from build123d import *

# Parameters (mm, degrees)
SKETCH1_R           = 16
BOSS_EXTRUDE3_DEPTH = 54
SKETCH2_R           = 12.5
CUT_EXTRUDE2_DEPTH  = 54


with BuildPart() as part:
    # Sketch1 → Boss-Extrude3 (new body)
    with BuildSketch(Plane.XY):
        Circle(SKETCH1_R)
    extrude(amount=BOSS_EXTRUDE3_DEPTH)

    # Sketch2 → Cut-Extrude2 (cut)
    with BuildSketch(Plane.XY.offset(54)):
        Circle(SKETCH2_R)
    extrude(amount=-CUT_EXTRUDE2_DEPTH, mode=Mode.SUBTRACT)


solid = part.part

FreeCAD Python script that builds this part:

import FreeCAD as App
import Part
import Sketcher

V = App.Vector

doc = App.newDocument("Part")
body = doc.addObject("PartDesign::Body", "Body")

# Sketch on XY plane
sketch1 = body.newObject("Sketcher::SketchObject", "Sketch")
sketch1.AttachmentSupport = (doc.getObject("XY_Plane"), [""])
sketch1.MapMode = "FlatFace"
sketch1.addGeometry(Part.Circle(V(0, 0, 0), V(0, 0, 1), 16), False)
sketch1.addConstraint([
    Sketcher.Constraint("Coincident", 0, 3, -1, 1),
    Sketcher.Constraint("Diameter", 0, 32.0),
])
pad1 = body.newObject("PartDesign::Pad", "Pad")
pad1.Profile = sketch1
pad1.Length = 54

# Sketch on XY plane
sketch2 = body.newObject("Sketcher::SketchObject", "Sketch001")
sketch2.AttachmentSupport = (doc.getObject("XY_Plane"), [""])
sketch2.MapMode = "FlatFace"
sketch2.AttachmentOffset = App.Placement(V(0, 0, 54), App.Rotation())
sketch2.addGeometry(Part.Circle(V(0, 0, 0), V(0, 0, 1), 12.5), False)
sketch2.addConstraint([
    Sketcher.Constraint("Coincident", 0, 3, -1, 1),
    Sketcher.Constraint("Diameter", 0, 25.0),
])
pocket1 = body.newObject("PartDesign::Pocket", "Pocket")
pocket1.Profile = sketch2
pocket1.Length = 54

doc.recompute()
